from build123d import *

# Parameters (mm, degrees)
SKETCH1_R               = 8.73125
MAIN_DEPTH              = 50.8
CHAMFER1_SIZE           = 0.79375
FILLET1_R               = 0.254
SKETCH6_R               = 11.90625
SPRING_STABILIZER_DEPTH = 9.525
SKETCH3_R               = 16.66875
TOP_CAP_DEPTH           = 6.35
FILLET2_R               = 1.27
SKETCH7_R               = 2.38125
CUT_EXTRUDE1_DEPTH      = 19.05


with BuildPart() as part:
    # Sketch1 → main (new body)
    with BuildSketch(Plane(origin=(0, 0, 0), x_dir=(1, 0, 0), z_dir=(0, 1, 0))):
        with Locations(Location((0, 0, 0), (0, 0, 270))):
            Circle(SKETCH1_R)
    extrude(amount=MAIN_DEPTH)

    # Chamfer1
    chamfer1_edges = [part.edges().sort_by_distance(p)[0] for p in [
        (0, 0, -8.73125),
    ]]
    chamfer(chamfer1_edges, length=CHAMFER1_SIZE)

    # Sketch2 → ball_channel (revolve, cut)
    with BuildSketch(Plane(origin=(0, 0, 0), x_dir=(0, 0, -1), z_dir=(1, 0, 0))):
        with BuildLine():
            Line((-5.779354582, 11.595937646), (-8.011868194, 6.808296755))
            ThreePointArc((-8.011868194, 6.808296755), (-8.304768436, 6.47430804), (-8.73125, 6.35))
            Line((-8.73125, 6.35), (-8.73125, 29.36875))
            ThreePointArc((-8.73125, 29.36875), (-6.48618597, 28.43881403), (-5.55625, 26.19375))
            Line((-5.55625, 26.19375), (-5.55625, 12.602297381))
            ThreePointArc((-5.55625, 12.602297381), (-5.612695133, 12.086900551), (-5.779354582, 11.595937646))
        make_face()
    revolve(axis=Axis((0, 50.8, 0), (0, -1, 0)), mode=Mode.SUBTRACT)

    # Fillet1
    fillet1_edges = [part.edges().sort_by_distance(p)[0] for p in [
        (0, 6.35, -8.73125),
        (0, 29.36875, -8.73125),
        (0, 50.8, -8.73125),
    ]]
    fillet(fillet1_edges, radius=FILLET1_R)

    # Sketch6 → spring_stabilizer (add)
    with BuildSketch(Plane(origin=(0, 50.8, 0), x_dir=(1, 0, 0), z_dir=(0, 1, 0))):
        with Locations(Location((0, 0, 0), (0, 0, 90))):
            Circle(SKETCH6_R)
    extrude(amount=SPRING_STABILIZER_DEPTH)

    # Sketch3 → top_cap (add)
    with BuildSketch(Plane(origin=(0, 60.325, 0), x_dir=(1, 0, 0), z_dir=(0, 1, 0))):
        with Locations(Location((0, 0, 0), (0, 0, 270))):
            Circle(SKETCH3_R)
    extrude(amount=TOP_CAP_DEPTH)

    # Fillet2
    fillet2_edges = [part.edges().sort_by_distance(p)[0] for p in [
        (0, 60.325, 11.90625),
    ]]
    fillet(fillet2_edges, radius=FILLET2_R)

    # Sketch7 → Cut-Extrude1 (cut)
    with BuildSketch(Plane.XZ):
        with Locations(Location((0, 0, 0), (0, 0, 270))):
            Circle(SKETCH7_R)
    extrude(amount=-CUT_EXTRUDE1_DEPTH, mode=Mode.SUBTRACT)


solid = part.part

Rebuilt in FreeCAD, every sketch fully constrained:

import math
import FreeCAD as App
import Part
import Sketcher
Q = App.Units.Quantity


def edges_at(feature, points):
    """Names of the edges that pass closest to the given points."""
    edges = feature.Shape.Edges
    near = lambda p: min(range(len(edges)), key=lambda i: edges[i].distToShape(Part.Vertex(*p))[0])
    return sorted({f"Edge{near(p) + 1}" for p in points})

doc = App.newDocument("Part")
body = doc.addObject("PartDesign::Body", "Body")

sketch1 = body.newObject("Sketcher::SketchObject", "Sketch")
sketch1.AttachmentSupport = (doc.getObject("XZ_Plane"), [""])
sketch1.MapMode = "FlatFace"
sketch1.addGeometry(Part.Circle(App.Vector(0, 0, 0), App.Vector(0, 0, 1), 9), False)
sketch1.addConstraint([
    Sketcher.Constraint("Coincident", 0, 3, -1, 1),
    Sketcher.Constraint("Diameter", 0, Q("0.6875 in")),
])
pad1 = body.newObject("PartDesign::Pad", "Pad")
pad1.Profile = sketch1
pad1.Length = Q("2 in")
pad1.Reversed = True
doc.recompute()

chamfer = body.newObject("PartDesign::Chamfer", "Chamfer")
chamfer.Base = (pad1, edges_at(pad1, [(0, 0, -8.731)]))
chamfer.Size = Q("0.03125 in")

sketch2 = body.newObject("Sketcher::SketchObject", "Sketch001")
sketch2.AttachmentSupport = (doc.getObject("YZ_Plane"), [""])
sketch2.MapMode = "FlatFace"
sketch2.addGeometry([
    Part.LineSegment(App.Vector(6.8, 8, 0), App.Vector(11.6, 5.8, 0)),
    Part.ArcOfCircle(Part.Circle(App.Vector(12.6, 7.9, 0), App.Vector(0, 0, 1), 2.4), math.radians(-115), math.radians(-90)),
    Part.LineSegment(App.Vector(12.6, 5.6, 0), App.Vector(26.2, 5.6, 0)),
    Part.ArcOfCircle(Part.Circle(App.Vector(26.2, 8.7, 0), App.Vector(0, 0, 1), 3.2), math.radians(-90), math.radians(0)),
    Part.LineSegment(App.Vector(29.4, 8.7, 0), App.Vector(6.3, 8.7, 0)),
    Part.ArcOfCircle(Part.Circle(App.Vector(7.1, 8.7, 0), App.Vector(0, 0, 1), 0.8), math.radians(180), math.radians(245)),
], False)
sketch2.addConstraint([
    Sketcher.Constraint("Tangent", 0, 2, 1, 1),
    Sketcher.Constraint("Tangent", 1, 2, 2, 1),
    Sketcher.Constraint("Tangent", 2, 2, 3, 1),
    Sketcher.Constraint("Coincident", 3, 2, 4, 1),
    Sketcher.Constraint("Coincident", 4, 2, 5, 1),
    Sketcher.Constraint("Tangent", 5, 2, 0, 1),
    Sketcher.Constraint("Horizontal", 2),
    Sketcher.Constraint("Horizontal", 4),
    Sketcher.Constraint("Horizontal", 3, 3, 5, 3),
    Sketcher.Constraint("Horizontal", 5, 3, 3, 2),
    Sketcher.Constraint("Angle", 0, Q("-25 deg")),
    Sketcher.Constraint("Radius", 1, Q("0.09375 in")),
    Sketcher.Constraint("Radius", 3, Q("0.125 in")),
    Sketcher.Constraint("Radius", 5, Q("0.03125 in")),
    Sketcher.Constraint("DistanceX", 4, 2, 4, 1, Q("0.90625 in")),
    Sketcher.Constraint("DistanceX", -1, 1, 4, 2, Q("0.25 in")),
    Sketcher.Constraint("DistanceY", -1, 1, 1, 3, Q("0.3125 in")),
])
groove = body.newObject("PartDesign::Groove", "Groove")
groove.Profile = sketch2
groove.ReferenceAxis = (sketch2, ["H_Axis"])
groove.Angle = 360
doc.recompute()

fillet = body.newObject("PartDesign::Fillet", "Fillet")
fillet.Base = (groove, edges_at(groove, [(0, 6.35, -8.731), (0, 29.369, -8.731), (0, 50.8, -8.731)]))
fillet.Radius = Q("0.01 in")

sketch3 = body.newObject("Sketcher::SketchObject", "Sketch002")
sketch3.AttachmentSupport = (doc.getObject("XZ_Plane"), [""])
sketch3.MapMode = "FlatFace"
sketch3.AttachmentOffset = App.Placement(App.Vector(0, 0, -2 * 25.4), App.Rotation())
sketch3.addGeometry(Part.Circle(App.Vector(0, 0, 0), App.Vector(0, 0, 1), 12), False)
sketch3.addConstraint([
    Sketcher.Constraint("Coincident", 0, 3, -1, 1),
    Sketcher.Constraint("Diameter", 0, Q("0.9375 in")),
])
pad2 = body.newObject("PartDesign::Pad", "Pad001")
pad2.Profile = sketch3
pad2.Length = Q("0.375 in")
pad2.Reversed = True

sketch4 = body.newObject("Sketcher::SketchObject", "Sketch003")
sketch4.AttachmentSupport = (doc.getObject("XZ_Plane"), [""])
sketch4.MapMode = "FlatFace"
sketch4.AttachmentOffset = App.Placement(App.Vector(0, 0, -2.375 * 25.4), App.Rotation())
sketch4.addGeometry(Part.Circle(App.Vector(0, 0, 0), App.Vector(0, 0, 1), 17), False)
sketch4.addConstraint([
    Sketcher.Constraint("Coincident", 0, 3, -1, 1),
    Sketcher.Constraint("Diameter", 0, Q("1.3125 in")),
])
pad3 = body.newObject("PartDesign::Pad", "Pad002")
pad3.Profile = sketch4
pad3.Length = Q("0.25 in")
pad3.Reversed = True
doc.recompute()

fillet2 = body.newObject("PartDesign::Fillet", "Fillet001")
fillet2.Base = (pad3, edges_at(pad3, [(0, 60.325, 11.906)]))
fillet2.Radius = Q("0.05 in")

sketch5 = body.newObject("Sketcher::SketchObject", "Sketch004")
sketch5.AttachmentSupport = (doc.getObject("XZ_Plane"), [""])
sketch5.MapMode = "FlatFace"
sketch5.addGeometry(Part.Circle(App.Vector(0, 0, 0), App.Vector(0, 0, 1), 2.4), False)
sketch5.addConstraint([
    Sketcher.Constraint("Coincident", 0, 3, -1, 1),
    Sketcher.Constraint("Diameter", 0, Q("0.1875 in")),
])
pocket1 = body.newObject("PartDesign::Pocket", "Pocket")
pocket1.Profile = sketch5
pocket1.Length = Q("0.75 in")

doc.recompute()
